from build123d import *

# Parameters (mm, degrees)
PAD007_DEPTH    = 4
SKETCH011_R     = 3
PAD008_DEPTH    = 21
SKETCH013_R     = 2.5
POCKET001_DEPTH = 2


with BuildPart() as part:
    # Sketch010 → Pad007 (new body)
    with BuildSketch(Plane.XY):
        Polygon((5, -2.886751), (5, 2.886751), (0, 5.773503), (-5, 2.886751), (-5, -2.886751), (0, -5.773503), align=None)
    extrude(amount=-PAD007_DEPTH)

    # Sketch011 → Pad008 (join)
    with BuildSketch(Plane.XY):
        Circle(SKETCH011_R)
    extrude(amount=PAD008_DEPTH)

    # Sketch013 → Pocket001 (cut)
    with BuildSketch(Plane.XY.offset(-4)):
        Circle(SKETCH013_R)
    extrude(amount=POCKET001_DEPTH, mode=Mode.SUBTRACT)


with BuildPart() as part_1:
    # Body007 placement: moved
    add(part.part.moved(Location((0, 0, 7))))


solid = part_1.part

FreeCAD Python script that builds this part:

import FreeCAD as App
import Part
import Sketcher
from FreeCAD import Vector
Q = App.Units.Quantity


def add_polygon(sketch, points):
    """Adds a closed chain of lines whose ends are joined by coincident constraints."""
    first, n = sketch.GeometryCount, len(points)
    for a, b in zip(points, points[1:] + points[:1]):
        sketch.addGeometry(Part.LineSegment(App.Vector(*a, 0), App.Vector(*b, 0)), False)
    for i in range(n):
        sketch.addConstraint(Sketcher.Constraint("Coincident", first + i, 2, first + (i + 1) % n, 1))

doc = App.newDocument("Part")
body = doc.addObject("PartDesign::Body", "Body")

# Sketch on XY plane
sketch1 = body.newObject("Sketcher::SketchObject", "Sketch")
sketch1.AttachmentSupport = (doc.getObject("XY_Plane"), [""])
sketch1.MapMode = "FlatFace"
add_polygon(sketch1, [(5, -3), (5, 3), (0, 6), (-5, 3), (-5, -3), (0, -6)])  # lines 0-5
sketch1.addConstraint([
    Sketcher.Constraint("Vertical", 0),
    Sketcher.Constraint("Vertical", 3),
    Sketcher.Constraint("Symmetric", 0, 2, 3, 2, -1, 1),
    Sketcher.Constraint("Symmetric", 1, 2, 4, 2, -1, 1),
    Sketcher.Constraint("PointOnObject", 1, 2, -2),
    Sketcher.Constraint("Parallel", 2, 5),
    Sketcher.Constraint("Horizontal", 0, 2, 2, 2),
    Sketcher.Constraint("Angle", 1, Q("149.999994 deg")),
    Sketcher.Constraint("DistanceX", -1, 1, 0, 2, Q("5 mm")),
    Sketcher.Constraint("DistanceY", 0, 1, 0, 2, Q("5.773502 mm")),
])
pad1 = body.newObject("PartDesign::Pad", "Pad")
pad1.Profile = sketch1
pad1.Length = 4
pad1.Reversed = True

# Sketch on XY plane
sketch2 = body.newObject("Sketcher::SketchObject", "Sketch001")
sketch2.AttachmentSupport = (doc.getObject("XY_Plane"), [""])
sketch2.MapMode = "FlatFace"
sketch2.addGeometry(Part.Circle(Vector(0, 0, 0), Vector(0, 0, 1), 3), False)
sketch2.addConstraint([
    Sketcher.Constraint("Coincident", 0, 3, -1, 1),
    Sketcher.Constraint("Diameter", 0, Q("6 mm")),
])
pad2 = body.newObject("PartDesign::Pad", "Pad001")
pad2.Profile = sketch2
pad2.Length = 21

# Sketch on XY plane
sketch3 = body.newObject("Sketcher::SketchObject", "Sketch002")
sketch3.AttachmentSupport = (doc.getObject("XY_Plane"), [""])
sketch3.MapMode = "FlatFace"
sketch3.AttachmentOffset = App.Placement(Vector(0, 0, -4), App.Rotation())
sketch3.addGeometry(Part.Circle(Vector(0, 0, 0), Vector(0, 0, 1), 2.5), False)
sketch3.addConstraint([
    Sketcher.Constraint("Coincident", 0, 3, -1, 1),
    Sketcher.Constraint("Diameter", 0, Q("5 mm")),
])
pocket1 = body.newObject("PartDesign::Pocket", "Pocket")
pocket1.Profile = sketch3
pocket1.Length = 2
pocket1.Reversed = True
body2 = doc.addObject("PartDesign::Body", "Body001")
doc.recompute()

body.Placement = App.Placement(Vector(0, 0, 7), App.Rotation(Vector(0, 0, 1), 0))
boolean = body2.newObject("PartDesign::Boolean", "Boolean")
boolean.Type = "Fuse"
boolean.addObjects([body])

doc.recompute()
